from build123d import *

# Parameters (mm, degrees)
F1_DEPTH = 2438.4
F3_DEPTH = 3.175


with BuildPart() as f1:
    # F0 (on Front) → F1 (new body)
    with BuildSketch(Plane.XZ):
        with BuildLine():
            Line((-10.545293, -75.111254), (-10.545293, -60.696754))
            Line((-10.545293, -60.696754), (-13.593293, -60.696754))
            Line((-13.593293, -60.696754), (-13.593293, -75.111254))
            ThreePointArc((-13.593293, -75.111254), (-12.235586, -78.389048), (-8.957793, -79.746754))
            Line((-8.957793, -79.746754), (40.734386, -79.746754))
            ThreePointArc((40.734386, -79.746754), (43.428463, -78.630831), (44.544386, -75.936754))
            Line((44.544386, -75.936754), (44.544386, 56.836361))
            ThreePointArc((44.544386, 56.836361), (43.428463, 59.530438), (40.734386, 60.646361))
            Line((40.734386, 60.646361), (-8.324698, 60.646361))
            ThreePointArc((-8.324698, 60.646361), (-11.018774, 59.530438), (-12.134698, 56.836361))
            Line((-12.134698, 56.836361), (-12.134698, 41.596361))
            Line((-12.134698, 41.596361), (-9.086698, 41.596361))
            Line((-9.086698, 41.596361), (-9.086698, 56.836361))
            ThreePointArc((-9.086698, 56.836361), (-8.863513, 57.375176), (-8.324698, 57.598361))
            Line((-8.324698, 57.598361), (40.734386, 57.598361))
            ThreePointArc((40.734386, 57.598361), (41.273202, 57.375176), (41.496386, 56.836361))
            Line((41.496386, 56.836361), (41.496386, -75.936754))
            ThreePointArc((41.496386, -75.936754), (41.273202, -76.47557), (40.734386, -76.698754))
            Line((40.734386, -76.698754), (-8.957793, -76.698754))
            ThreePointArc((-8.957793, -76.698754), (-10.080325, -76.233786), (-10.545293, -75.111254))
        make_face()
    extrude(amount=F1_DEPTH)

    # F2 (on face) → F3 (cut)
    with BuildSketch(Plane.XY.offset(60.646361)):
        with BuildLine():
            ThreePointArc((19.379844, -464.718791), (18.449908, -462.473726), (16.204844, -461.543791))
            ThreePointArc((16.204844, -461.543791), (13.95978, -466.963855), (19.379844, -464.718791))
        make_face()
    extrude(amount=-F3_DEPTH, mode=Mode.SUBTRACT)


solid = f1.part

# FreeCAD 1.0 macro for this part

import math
import FreeCAD as App
import Part
import Sketcher
from FreeCAD import Vector
Q = App.Units.Quantity

doc = App.newDocument("Part")
body = doc.addObject("PartDesign::Body", "Body")

sketch1 = body.newObject("Sketcher::SketchObject", "Sketch")
sketch1.AttachmentSupport = (doc.getObject("XZ_Plane"), [""])
sketch1.MapMode = "FlatFace"
sketch1.addGeometry(Part.LineSegment(Vector(-10.5, -75.1, 0), Vector(-10.5, -60.7, 0)), False)
sketch1.addGeometry(Part.LineSegment(Vector(-10.5, -60.7, 0), Vector(-13.6, -60.7, 0)), False)
sketch1.addGeometry(Part.LineSegment(Vector(-13.6, -60.7, 0), Vector(-13.6, -75.1, 0)), False)
sketch1.addGeometry(Part.ArcOfCircle(Part.Circle(Vector(-9, -75.1, 0), Vector(0, 0, 1), 4.6), math.radians(180), math.radians(270)), False)
sketch1.addGeometry(Part.LineSegment(Vector(-9, -79.7, 0), Vector(40.7, -79.7, 0)), False)
sketch1.addGeometry(Part.ArcOfCircle(Part.Circle(Vector(40.7, -75.9, 0), Vector(0, 0, 1), 3.8), math.radians(-90), math.radians(0)), False)
sketch1.addGeometry(Part.LineSegment(Vector(44.5, -75.9, 0), Vector(44.5, 56.8, 0)), False)
sketch1.addGeometry(Part.ArcOfCircle(Part.Circle(Vector(40.7, 56.8, 0), Vector(0, 0, 1), 3.8), math.radians(0), math.radians(90)), False)
sketch1.addGeometry(Part.LineSegment(Vector(40.7, 60.6, 0), Vector(-8.3, 60.6, 0)), False)
sketch1.addGeometry(Part.ArcOfCircle(Part.Circle(Vector(-8.3, 56.8, 0), Vector(0, 0, 1), 3.8), math.radians(90), math.radians(180)), False)
sketch1.addGeometry(Part.LineSegment(Vector(-12.1, 56.8, 0), Vector(-12.1, 41.6, 0)), False)
sketch1.addGeometry(Part.LineSegment(Vector(-12.1, 41.6, 0), Vector(-9.1, 41.6, 0)), False)
sketch1.addGeometry(Part.LineSegment(Vector(-9.1, 41.6, 0), Vector(-9.1, 56.8, 0)), False)
sketch1.addGeometry(Part.ArcOfCircle(Part.Circle(Vector(-8.3, 56.8, 0), Vector(0, 0, 1), 0.8), math.radians(90), math.radians(180)), False)
sketch1.addGeometry(Part.LineSegment(Vector(-8.3, 57.6, 0), Vector(40.7, 57.6, 0)), False)
sketch1.addGeometry(Part.ArcOfCircle(Part.Circle(Vector(40.7, 56.8, 0), Vector(0, 0, 1), 0.8), math.radians(0), math.radians(90)), False)
sketch1.addGeometry(Part.LineSegment(Vector(41.5, 56.8, 0), Vector(41.5, -75.9, 0)), False)
sketch1.addGeometry(Part.ArcOfCircle(Part.Circle(Vector(40.7, -75.9, 0), Vector(0, 0, 1), 0.8), math.radians(-90), math.radians(0)), False)
sketch1.addGeometry(Part.LineSegment(Vector(40.7, -76.7, 0), Vector(-9, -76.7, 0)), False)
sketch1.addGeometry(Part.ArcOfCircle(Part.Circle(Vector(-9, -75.1, 0), Vector(0, 0, 1), 1.6), math.radians(-180), math.radians(-90)), False)
sketch1.addConstraint(Sketcher.Constraint("Coincident", 0, 2, 1, 1))
sketch1.addConstraint(Sketcher.Constraint("Coincident", 1, 2, 2, 1))
sketch1.addConstraint(Sketcher.Constraint("Tangent", 2, 2, 3, 1))
sketch1.addConstraint(Sketcher.Constraint("Tangent", 3, 2, 4, 1))
sketch1.addConstraint(Sketcher.Constraint("Tangent", 4, 2, 5, 1))
sketch1.addConstraint(Sketcher.Constraint("Tangent", 5, 2, 6, 1))
sketch1.addConstraint(Sketcher.Constraint("Tangent", 6, 2, 7, 1))
sketch1.addConstraint(Sketcher.Constraint("Tangent", 7, 2, 8, 1))
sketch1.addConstraint(Sketcher.Constraint("Tangent", 8, 2, 9, 1))
sketch1.addConstraint(Sketcher.Constraint("Tangent", 9, 2, 10, 1))
sketch1.addConstraint(Sketcher.Constraint("Coincident", 10, 2, 11, 1))
sketch1.addConstraint(Sketcher.Constraint("Coincident", 11, 2, 12, 1))
sketch1.addConstraint(Sketcher.Constraint("Tangent", 12, 2, 13, 2))
sketch1.addConstraint(Sketcher.Constraint("Tangent", 13, 1, 14, 1))
sketch1.addConstraint(Sketcher.Constraint("Tangent", 14, 2, 15, 2))
sketch1.addConstraint(Sketcher.Constraint("Tangent", 15, 1, 16, 1))
sketch1.addConstraint(Sketcher.Constraint("Coincident", 16, 2, 17, 2))
sketch1.addConstraint(Sketcher.Constraint("Coincident", 17, 1, 18, 1))
sketch1.addConstraint(Sketcher.Constraint("Tangent", 18, 2, 19, 2))
sketch1.addConstraint(Sketcher.Constraint("Tangent", 19, 1, 0, 1))
sketch1.addConstraint(Sketcher.Constraint("Vertical", 0))
sketch1.addConstraint(Sketcher.Constraint("Horizontal", 1))
sketch1.addConstraint(Sketcher.Constraint("Vertical", 2))
sketch1.addConstraint(Sketcher.Constraint("Horizontal", 4))
sketch1.addConstraint(Sketcher.Constraint("Vertical", 6))
sketch1.addConstraint(Sketcher.Constraint("Horizontal", 8))
sketch1.addConstraint(Sketcher.Constraint("Vertical", 10))
sketch1.addConstraint(Sketcher.Constraint("Horizontal", 11))
sketch1.addConstraint(Sketcher.Constraint("Vertical", 12))
sketch1.addConstraint(Sketcher.Constraint("Horizontal", 14))
sketch1.addConstraint(Sketcher.Constraint("Vertical", 16))
sketch1.addConstraint(Sketcher.Constraint("Horizontal", 18))
sketch1.addConstraint(Sketcher.Constraint("Coincident", 13, 3, 9, 3))
sketch1.addConstraint(Sketcher.Constraint("Coincident", 15, 3, 7, 3))
sketch1.addConstraint(Sketcher.Constraint("Coincident", 17, 3, 5, 3))
sketch1.addConstraint(Sketcher.Constraint("Coincident", 19, 3, 3, 3))
sketch1.addConstraint(Sketcher.Constraint("Equal", 5, 7))
sketch1.addConstraint(Sketcher.Constraint("Equal", 7, 9))
sketch1.addConstraint(Sketcher.Constraint("Horizontal", 5, 2, 16, 2))
sketch1.addConstraint(Sketcher.Constraint("Vertical", 14, 2, 17, 1))
sketch1.addConstraint(Sketcher.Constraint("Radius", 5, Q("0.15 in")))
sketch1.addConstraint(Sketcher.Constraint("Radius", 13, Q("0.03 in")))
sketch1.addConstraint(Sketcher.Constraint("DistanceY", 10, 2, 10, 1, Q("0.6 in")))
sketch1.addConstraint(Sketcher.Constraint("Radius", 19, Q("0.0625 in")))
sketch1.addConstraint(Sketcher.Constraint("DistanceY", 5, 3, 0, 2, Q("0.6 in")))
sketch1.addConstraint(Sketcher.Constraint("DistanceX", 4, 1, 4, 2, 49.692179))
sketch1.addConstraint(Sketcher.Constraint("DistanceX", 8, 2, 8, 1, 49.059084))
sketch1.addConstraint(Sketcher.Constraint("DistanceY", 6, 1, 6, 2, 132.773115))
sketch1.addConstraint(Sketcher.Constraint("DistanceY", -1, 1, 7, 3, 56.836362))
sketch1.addConstraint(Sketcher.Constraint("DistanceX", -1, 1, 17, 3, 40.734388))
pad1 = body.newObject("PartDesign::Pad", "Pad")
pad1.Profile = sketch1
pad1.Length = Q("96 in")

sketch2 = body.newObject("Sketcher::SketchObject", "Sketch001")
sketch2.AttachmentSupport = (doc.getObject("XY_Plane"), [""])
sketch2.MapMode = "FlatFace"
sketch2.AttachmentOffset = App.Placement(Vector(0, 0, 60.646361), App.Rotation())
sketch2.addGeometry(Part.ArcOfCircle(Part.Circle(Vector(16.2, -464.7, 0), Vector(0, 0, 1), 3.2), math.radians(0), math.radians(90)), False)
sketch2.addGeometry(Part.ArcOfCircle(Part.Circle(Vector(16.2, -464.7, 0), Vector(0, 0, 1), 3.2), math.radians(90), math.radians(360)), False)
sketch2.addConstraint(Sketcher.Constraint("Tangent", 0, 1, 1, 2))
sketch2.addConstraint(Sketcher.Constraint("Coincident", 1, 1, 0, 2))
sketch2.addConstraint(Sketcher.Constraint("Horizontal", 1, 3, 0, 1))
sketch2.addConstraint(Sketcher.Constraint("Vertical", 0, 3, 1, 1))
sketch2.addConstraint(Sketcher.Constraint("Radius", 0, Q("0.1249999 in")))
sketch2.addConstraint(Sketcher.Constraint("DistanceY", 0, 3, -1, 1, 464.718789))
sketch2.addConstraint(Sketcher.Constraint("DistanceX", -1, 1, 0, 3, 16.204846))
pocket1 = body.newObject("PartDesign::Pocket", "Pocket")
pocket1.Profile = sketch2
pocket1.Length = Q("0.125 in")

doc.recompute()
